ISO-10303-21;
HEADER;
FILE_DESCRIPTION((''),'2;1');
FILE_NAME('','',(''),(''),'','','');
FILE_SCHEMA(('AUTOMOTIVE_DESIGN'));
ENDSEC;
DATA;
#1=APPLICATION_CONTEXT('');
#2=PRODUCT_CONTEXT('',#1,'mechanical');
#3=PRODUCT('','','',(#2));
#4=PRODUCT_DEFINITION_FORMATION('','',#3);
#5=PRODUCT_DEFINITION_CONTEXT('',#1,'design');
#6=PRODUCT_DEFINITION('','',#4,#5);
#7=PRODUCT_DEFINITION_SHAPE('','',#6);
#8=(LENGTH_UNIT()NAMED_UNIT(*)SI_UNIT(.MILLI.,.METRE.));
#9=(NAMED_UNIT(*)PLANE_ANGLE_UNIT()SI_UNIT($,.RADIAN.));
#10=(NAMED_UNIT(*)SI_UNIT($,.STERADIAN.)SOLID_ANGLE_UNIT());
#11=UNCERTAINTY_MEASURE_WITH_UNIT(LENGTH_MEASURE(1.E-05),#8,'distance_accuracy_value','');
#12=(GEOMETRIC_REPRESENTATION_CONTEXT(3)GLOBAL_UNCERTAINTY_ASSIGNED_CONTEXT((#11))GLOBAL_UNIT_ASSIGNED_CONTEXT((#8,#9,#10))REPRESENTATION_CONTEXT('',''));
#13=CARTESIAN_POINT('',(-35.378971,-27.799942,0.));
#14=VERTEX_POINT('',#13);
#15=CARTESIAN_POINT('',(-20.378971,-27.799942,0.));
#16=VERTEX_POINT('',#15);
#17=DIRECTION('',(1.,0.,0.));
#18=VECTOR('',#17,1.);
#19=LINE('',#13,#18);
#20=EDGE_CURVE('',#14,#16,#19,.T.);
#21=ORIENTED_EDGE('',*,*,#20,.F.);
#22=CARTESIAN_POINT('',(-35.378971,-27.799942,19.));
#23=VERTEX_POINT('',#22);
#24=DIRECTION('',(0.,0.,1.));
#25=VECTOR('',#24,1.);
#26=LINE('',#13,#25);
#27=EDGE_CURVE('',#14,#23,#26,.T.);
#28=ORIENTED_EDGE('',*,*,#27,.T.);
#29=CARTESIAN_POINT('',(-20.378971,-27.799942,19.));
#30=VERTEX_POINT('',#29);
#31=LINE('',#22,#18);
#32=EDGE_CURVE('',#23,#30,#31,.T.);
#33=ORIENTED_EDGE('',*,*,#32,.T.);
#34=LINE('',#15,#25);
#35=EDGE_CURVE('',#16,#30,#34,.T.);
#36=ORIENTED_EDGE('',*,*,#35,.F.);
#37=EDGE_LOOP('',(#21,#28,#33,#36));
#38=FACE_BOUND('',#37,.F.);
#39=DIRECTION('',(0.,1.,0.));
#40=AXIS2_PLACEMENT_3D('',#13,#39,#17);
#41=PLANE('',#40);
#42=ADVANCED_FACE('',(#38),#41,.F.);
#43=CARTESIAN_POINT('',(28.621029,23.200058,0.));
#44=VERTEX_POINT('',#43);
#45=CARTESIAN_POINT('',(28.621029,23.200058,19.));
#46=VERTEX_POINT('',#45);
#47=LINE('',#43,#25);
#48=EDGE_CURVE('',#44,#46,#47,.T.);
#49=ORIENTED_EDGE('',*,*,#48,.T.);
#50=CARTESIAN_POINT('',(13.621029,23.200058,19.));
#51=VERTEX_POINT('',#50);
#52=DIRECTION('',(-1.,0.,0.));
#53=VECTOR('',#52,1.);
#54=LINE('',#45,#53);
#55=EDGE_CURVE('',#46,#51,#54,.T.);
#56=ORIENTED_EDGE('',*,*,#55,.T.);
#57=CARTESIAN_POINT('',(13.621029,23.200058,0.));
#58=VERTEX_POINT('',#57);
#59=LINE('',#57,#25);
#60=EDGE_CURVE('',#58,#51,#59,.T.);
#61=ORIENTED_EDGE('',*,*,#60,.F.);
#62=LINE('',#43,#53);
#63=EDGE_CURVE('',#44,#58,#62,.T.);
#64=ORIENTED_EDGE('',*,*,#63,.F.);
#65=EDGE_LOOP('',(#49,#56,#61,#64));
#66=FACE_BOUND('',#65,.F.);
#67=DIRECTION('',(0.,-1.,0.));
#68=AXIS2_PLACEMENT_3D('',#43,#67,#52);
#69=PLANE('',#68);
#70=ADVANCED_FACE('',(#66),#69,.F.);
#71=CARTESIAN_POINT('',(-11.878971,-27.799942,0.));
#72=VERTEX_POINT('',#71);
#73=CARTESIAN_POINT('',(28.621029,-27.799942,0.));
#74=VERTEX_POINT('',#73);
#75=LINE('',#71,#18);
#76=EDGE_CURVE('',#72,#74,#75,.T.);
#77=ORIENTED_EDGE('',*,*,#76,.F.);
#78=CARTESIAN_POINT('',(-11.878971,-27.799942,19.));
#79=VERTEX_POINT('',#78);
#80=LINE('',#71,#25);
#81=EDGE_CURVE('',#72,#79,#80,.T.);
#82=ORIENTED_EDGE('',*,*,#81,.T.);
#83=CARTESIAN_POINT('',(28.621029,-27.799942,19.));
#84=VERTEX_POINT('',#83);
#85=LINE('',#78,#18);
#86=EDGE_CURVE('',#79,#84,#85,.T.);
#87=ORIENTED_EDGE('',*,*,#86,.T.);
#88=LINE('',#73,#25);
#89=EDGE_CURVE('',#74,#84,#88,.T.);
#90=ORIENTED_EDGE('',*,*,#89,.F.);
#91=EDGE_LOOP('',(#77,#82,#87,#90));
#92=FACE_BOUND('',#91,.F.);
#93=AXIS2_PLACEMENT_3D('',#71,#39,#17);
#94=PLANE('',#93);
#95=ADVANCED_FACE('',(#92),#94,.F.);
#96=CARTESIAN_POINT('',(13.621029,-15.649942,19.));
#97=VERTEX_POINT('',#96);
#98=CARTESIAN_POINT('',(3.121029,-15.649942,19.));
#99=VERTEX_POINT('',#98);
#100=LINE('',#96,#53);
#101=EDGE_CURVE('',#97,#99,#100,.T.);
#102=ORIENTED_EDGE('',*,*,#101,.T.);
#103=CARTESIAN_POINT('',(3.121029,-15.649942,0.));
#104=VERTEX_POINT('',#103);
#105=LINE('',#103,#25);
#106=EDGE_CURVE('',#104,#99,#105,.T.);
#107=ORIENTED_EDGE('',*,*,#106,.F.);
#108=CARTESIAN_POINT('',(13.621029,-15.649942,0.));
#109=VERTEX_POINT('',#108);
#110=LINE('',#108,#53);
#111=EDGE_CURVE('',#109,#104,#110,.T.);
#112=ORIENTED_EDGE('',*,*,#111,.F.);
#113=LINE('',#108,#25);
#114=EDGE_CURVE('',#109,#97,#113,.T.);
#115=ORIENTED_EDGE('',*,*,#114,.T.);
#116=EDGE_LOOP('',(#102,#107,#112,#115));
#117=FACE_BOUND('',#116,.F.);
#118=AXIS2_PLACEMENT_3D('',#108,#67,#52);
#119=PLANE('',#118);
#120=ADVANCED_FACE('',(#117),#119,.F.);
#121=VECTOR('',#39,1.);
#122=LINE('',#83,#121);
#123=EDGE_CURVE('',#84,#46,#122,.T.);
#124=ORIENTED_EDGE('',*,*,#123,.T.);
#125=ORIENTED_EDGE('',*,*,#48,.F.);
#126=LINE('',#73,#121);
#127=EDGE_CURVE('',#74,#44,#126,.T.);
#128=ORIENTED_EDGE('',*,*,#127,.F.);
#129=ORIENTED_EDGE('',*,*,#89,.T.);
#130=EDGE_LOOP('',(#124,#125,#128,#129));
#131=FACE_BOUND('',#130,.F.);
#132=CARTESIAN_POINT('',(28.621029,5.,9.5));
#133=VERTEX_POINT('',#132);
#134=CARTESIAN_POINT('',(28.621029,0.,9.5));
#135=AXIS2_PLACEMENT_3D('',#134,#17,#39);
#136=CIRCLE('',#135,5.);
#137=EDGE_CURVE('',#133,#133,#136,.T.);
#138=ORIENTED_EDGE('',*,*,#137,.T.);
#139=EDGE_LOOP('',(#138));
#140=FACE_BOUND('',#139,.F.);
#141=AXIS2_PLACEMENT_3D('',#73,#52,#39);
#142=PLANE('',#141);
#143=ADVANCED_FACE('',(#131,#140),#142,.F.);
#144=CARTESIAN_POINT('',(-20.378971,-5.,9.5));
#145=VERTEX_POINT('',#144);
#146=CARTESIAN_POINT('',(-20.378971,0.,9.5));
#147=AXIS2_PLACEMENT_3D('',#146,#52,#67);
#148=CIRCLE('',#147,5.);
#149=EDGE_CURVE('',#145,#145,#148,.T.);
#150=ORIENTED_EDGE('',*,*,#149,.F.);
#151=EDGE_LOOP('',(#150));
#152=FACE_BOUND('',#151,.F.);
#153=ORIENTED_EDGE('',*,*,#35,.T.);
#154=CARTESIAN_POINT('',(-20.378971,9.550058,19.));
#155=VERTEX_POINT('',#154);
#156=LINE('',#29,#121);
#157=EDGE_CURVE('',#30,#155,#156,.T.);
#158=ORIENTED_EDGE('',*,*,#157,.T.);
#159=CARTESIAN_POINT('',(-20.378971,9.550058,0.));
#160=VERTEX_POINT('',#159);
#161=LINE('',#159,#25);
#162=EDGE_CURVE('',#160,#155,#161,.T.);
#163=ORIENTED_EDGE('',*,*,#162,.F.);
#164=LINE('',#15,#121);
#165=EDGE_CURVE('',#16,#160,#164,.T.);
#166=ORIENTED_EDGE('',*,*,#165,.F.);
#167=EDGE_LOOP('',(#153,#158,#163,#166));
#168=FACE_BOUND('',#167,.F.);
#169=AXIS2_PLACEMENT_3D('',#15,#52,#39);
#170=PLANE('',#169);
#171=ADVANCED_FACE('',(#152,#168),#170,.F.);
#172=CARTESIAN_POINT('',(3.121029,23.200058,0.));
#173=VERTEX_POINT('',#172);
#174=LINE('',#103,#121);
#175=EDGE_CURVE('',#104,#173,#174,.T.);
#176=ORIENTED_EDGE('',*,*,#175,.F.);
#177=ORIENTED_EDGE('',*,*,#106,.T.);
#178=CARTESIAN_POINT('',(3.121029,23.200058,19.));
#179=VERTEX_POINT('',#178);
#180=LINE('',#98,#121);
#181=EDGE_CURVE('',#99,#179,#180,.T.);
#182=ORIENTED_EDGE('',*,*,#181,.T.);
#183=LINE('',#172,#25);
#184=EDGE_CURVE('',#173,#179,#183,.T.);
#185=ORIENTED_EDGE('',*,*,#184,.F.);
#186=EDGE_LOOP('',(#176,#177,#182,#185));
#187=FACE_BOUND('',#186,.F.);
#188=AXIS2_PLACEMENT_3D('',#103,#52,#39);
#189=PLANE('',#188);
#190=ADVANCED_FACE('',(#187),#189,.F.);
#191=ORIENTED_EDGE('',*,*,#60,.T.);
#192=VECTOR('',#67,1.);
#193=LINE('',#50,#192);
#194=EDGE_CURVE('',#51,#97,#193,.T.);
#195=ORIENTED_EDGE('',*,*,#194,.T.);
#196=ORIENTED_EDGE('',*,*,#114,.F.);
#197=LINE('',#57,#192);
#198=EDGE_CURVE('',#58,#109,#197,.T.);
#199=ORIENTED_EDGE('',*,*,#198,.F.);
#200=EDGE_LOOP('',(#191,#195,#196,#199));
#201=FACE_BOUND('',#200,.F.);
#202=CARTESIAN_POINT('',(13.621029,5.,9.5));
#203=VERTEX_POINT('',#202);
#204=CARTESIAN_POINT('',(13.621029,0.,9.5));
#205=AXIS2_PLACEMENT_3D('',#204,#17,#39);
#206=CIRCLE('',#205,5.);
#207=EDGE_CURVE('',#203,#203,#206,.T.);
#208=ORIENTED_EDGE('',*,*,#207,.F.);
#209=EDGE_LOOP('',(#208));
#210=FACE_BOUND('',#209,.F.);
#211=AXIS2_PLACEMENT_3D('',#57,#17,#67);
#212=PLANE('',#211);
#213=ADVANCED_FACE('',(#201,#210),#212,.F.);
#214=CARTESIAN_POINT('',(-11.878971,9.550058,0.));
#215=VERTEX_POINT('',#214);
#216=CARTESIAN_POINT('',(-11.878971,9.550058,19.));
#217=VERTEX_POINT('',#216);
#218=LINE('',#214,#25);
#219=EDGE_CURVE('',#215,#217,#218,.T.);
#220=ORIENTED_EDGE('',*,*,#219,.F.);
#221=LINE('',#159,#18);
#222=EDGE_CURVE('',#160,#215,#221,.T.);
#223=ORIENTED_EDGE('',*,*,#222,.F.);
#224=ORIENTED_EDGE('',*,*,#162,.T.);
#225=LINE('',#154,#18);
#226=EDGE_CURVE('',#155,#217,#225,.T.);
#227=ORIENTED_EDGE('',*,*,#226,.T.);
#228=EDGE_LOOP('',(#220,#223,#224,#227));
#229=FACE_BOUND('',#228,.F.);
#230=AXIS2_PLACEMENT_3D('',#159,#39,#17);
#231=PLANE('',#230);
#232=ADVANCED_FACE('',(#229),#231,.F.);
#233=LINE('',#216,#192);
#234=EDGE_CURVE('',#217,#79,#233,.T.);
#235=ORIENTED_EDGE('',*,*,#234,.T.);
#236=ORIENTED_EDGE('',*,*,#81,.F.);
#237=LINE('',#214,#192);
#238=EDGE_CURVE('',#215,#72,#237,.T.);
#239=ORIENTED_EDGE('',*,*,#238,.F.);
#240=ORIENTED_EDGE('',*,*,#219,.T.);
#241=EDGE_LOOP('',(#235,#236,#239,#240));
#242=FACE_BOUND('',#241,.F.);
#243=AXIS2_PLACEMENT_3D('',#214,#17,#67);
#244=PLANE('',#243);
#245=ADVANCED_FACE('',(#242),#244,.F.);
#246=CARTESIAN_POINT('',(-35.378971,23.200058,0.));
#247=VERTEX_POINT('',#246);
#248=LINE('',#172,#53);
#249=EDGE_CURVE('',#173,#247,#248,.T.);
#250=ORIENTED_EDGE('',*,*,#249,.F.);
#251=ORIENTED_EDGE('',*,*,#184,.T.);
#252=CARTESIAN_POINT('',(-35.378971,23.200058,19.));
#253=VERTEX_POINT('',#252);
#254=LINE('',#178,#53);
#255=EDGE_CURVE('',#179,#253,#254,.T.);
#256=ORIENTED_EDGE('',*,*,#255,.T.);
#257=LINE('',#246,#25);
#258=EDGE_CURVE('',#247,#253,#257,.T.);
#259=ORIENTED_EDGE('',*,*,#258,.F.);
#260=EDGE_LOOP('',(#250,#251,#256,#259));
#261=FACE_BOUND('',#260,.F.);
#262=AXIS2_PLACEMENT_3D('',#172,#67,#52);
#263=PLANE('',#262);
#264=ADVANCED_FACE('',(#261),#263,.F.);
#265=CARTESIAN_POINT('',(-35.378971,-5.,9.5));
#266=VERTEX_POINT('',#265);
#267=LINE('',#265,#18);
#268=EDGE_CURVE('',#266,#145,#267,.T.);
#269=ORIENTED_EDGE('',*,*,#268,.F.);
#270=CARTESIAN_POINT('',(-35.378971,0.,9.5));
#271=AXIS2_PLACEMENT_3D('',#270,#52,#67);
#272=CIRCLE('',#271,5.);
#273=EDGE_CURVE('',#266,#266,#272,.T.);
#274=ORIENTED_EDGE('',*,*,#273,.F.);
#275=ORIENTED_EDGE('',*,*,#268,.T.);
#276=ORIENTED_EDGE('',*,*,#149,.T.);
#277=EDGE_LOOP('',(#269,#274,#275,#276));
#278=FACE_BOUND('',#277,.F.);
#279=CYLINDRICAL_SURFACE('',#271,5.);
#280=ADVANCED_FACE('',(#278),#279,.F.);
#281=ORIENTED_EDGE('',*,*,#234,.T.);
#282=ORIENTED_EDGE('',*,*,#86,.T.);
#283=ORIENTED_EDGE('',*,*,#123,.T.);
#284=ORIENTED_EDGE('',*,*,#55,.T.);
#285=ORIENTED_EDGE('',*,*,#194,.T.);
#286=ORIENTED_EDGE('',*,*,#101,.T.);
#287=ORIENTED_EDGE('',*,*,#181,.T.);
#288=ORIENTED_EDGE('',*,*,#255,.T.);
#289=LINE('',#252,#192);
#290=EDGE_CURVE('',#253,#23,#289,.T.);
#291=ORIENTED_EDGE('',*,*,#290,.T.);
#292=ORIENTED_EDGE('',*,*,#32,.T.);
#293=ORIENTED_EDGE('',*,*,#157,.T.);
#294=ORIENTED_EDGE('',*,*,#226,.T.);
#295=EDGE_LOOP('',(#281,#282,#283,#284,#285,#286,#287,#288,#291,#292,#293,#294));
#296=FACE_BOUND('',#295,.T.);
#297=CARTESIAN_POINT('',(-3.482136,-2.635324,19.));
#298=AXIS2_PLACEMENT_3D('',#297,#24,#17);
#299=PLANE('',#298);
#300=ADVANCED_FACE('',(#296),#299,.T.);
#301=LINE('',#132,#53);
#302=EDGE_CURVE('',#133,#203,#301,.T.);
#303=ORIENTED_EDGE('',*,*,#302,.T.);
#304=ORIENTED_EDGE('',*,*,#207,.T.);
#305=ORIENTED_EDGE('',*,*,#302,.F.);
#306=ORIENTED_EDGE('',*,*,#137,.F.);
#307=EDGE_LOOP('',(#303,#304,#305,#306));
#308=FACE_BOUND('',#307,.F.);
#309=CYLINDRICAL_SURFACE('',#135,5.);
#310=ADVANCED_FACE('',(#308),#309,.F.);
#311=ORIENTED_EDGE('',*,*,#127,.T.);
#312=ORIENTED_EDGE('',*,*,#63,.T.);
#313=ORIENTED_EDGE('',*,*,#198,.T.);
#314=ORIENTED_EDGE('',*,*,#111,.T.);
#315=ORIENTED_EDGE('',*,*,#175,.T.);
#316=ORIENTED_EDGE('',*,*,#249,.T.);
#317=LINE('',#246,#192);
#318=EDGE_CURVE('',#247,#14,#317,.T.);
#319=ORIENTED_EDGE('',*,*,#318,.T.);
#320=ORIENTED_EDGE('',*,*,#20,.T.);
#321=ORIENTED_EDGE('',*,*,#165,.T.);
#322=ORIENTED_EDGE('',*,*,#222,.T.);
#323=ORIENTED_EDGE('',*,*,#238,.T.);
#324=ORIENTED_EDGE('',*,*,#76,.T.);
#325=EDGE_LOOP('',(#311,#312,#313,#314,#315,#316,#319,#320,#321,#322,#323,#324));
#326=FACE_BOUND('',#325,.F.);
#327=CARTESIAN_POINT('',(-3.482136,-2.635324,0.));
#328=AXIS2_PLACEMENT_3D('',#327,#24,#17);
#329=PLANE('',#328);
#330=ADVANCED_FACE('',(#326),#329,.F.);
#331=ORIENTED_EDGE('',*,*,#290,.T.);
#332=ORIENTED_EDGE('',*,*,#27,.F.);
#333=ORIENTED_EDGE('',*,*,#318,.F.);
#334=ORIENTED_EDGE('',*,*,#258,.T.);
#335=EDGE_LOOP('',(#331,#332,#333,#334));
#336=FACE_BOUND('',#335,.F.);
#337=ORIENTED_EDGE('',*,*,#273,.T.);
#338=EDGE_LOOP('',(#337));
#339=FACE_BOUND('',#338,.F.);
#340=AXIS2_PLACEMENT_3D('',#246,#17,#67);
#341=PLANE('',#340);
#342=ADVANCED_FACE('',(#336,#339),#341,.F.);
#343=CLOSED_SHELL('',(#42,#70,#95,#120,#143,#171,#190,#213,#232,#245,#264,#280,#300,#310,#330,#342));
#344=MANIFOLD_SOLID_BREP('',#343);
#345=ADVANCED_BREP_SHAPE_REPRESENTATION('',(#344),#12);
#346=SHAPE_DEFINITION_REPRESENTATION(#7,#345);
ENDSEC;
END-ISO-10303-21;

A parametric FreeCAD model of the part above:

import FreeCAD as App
import Part
import Sketcher
from FreeCAD import Vector
Q = App.Units.Quantity


def add_polygon(sketch, points):
    """Adds a closed chain of lines whose ends are joined by coincident constraints."""
    first, n = sketch.GeometryCount, len(points)
    for a, b in zip(points, points[1:] + points[:1]):
        sketch.addGeometry(Part.LineSegment(App.Vector(*a, 0), App.Vector(*b, 0)), False)
    for i in range(n):
        sketch.addConstraint(Sketcher.Constraint("Coincident", first + i, 2, first + (i + 1) % n, 1))

doc = App.newDocument("Part")
body = doc.addObject("PartDesign::Body", "Body")

# Sketch on XY plane
sketch1 = body.newObject("Sketcher::SketchObject", "Sketch")
sketch1.AttachmentSupport = (doc.getObject("XY_Plane"), [""])
sketch1.MapMode = "FlatFace"
add_polygon(sketch1, [(3.121029, 23.200058), (-35.378971, 23.200058), (-35.378971, -27.799942), (-20.378971, -27.799942), (-20.378971, 9.550058), (-11.878971, 9.550058), (-11.878971, -27.799942), (28.621029, -27.799942), (28.621029, 23.200058), (13.621029, 23.200058), (13.621029, -15.649942), (3.121029, -15.649942)])  # lines 0-11
sketch1.addConstraint([
    Sketcher.Constraint("Horizontal", 0),
    Sketcher.Constraint("Vertical", 1),
    Sketcher.Constraint("Horizontal", 2),
    Sketcher.Constraint("Vertical", 3),
    Sketcher.Constraint("Horizontal", 4),
    Sketcher.Constraint("Vertical", 5),
    Sketcher.Constraint("Horizontal", 6),
    Sketcher.Constraint("Vertical", 7),
    Sketcher.Constraint("Horizontal", 8),
    Sketcher.Constraint("Vertical", 9),
    Sketcher.Constraint("Horizontal", 10),
    Sketcher.Constraint("Vertical", 11),
    Sketcher.Constraint("Horizontal", 2, 2, 5, 2),
    Sketcher.Constraint("Horizontal", 0, 2, 7, 2),
    Sketcher.Constraint("Equal", 2, 8),
    Sketcher.Constraint("DistanceX", 2, 1, 2, 2, Q("15 mm")),
    Sketcher.Constraint("DistanceY", 1, 2, 1, 1, Q("51 mm")),
    Sketcher.Constraint("DistanceX", 0, 2, 0, 1, Q("38.5 mm")),
    Sketcher.Constraint("DistanceX", 4, 1, 4, 2, Q("8.5 mm")),
    Sketcher.Constraint("DistanceX", 6, 1, 6, 2, Q("40.5 mm")),
    Sketcher.Constraint("DistanceY", 3, 1, 3, 2, Q("37.35 mm")),
    Sketcher.Constraint("DistanceY", 9, 2, 9, 1, Q("38.85 mm")),
    Sketcher.Constraint("DistanceX", 0, 2, -1, 1, Q("35.378971 mm")),
    Sketcher.Constraint("DistanceY", -1, 1, 0, 2, Q("23.200058 mm")),
])
pad1 = body.newObject("PartDesign::Pad", "Pad")
pad1.Profile = sketch1
pad1.Length = 19

# Sketch on YZ plane
sketch2 = body.newObject("Sketcher::SketchObject", "Sketch001")
sketch2.AttachmentSupport = (doc.getObject("YZ_Plane"), [""])
sketch2.MapMode = "FlatFace"
sketch2.AttachmentOffset = App.Placement(Vector(0, 0, 28.621029), App.Rotation())
sketch2.addGeometry(Part.Circle(Vector(0, 9.5, 0), Vector(0, 0, 1), 5), False)
sketch2.addConstraint([
    Sketcher.Constraint("PointOnObject", 0, 3, -2),
    Sketcher.Constraint("Diameter", 0, Q("10 mm")),
    Sketcher.Constraint("DistanceY", -1, 1, 0, 3, Q("9.5 mm")),
])
pocket1 = body.newObject("PartDesign::Pocket", "Pocket")
pocket1.Profile = sketch2
pocket1.Length = 16

# Sketch on YZ plane
sketch3 = body.newObject("Sketcher::SketchObject", "Sketch002")
sketch3.AttachmentSupport = (doc.getObject("YZ_Plane"), [""])
sketch3.MapMode = "FlatFace"
sketch3.AttachmentOffset = App.Placement(Vector(0, 0, -35.378971), App.Rotation())
sketch3.addGeometry(Part.Circle(Vector(0, 9.5, 0), Vector(0, 0, 1), 5), False)
sketch3.addConstraint([
    Sketcher.Constraint("PointOnObject", 0, 3, -2),
    Sketcher.Constraint("Diameter", 0, Q("10 mm")),
    Sketcher.Constraint("DistanceY", -1, 1, 0, 3, Q("9.5 mm")),
])
pocket2 = body.newObject("PartDesign::Pocket", "Pocket001")
pocket2.Profile = sketch3
pocket2.Length = 16
pocket2.Reversed = True

doc.recompute()
